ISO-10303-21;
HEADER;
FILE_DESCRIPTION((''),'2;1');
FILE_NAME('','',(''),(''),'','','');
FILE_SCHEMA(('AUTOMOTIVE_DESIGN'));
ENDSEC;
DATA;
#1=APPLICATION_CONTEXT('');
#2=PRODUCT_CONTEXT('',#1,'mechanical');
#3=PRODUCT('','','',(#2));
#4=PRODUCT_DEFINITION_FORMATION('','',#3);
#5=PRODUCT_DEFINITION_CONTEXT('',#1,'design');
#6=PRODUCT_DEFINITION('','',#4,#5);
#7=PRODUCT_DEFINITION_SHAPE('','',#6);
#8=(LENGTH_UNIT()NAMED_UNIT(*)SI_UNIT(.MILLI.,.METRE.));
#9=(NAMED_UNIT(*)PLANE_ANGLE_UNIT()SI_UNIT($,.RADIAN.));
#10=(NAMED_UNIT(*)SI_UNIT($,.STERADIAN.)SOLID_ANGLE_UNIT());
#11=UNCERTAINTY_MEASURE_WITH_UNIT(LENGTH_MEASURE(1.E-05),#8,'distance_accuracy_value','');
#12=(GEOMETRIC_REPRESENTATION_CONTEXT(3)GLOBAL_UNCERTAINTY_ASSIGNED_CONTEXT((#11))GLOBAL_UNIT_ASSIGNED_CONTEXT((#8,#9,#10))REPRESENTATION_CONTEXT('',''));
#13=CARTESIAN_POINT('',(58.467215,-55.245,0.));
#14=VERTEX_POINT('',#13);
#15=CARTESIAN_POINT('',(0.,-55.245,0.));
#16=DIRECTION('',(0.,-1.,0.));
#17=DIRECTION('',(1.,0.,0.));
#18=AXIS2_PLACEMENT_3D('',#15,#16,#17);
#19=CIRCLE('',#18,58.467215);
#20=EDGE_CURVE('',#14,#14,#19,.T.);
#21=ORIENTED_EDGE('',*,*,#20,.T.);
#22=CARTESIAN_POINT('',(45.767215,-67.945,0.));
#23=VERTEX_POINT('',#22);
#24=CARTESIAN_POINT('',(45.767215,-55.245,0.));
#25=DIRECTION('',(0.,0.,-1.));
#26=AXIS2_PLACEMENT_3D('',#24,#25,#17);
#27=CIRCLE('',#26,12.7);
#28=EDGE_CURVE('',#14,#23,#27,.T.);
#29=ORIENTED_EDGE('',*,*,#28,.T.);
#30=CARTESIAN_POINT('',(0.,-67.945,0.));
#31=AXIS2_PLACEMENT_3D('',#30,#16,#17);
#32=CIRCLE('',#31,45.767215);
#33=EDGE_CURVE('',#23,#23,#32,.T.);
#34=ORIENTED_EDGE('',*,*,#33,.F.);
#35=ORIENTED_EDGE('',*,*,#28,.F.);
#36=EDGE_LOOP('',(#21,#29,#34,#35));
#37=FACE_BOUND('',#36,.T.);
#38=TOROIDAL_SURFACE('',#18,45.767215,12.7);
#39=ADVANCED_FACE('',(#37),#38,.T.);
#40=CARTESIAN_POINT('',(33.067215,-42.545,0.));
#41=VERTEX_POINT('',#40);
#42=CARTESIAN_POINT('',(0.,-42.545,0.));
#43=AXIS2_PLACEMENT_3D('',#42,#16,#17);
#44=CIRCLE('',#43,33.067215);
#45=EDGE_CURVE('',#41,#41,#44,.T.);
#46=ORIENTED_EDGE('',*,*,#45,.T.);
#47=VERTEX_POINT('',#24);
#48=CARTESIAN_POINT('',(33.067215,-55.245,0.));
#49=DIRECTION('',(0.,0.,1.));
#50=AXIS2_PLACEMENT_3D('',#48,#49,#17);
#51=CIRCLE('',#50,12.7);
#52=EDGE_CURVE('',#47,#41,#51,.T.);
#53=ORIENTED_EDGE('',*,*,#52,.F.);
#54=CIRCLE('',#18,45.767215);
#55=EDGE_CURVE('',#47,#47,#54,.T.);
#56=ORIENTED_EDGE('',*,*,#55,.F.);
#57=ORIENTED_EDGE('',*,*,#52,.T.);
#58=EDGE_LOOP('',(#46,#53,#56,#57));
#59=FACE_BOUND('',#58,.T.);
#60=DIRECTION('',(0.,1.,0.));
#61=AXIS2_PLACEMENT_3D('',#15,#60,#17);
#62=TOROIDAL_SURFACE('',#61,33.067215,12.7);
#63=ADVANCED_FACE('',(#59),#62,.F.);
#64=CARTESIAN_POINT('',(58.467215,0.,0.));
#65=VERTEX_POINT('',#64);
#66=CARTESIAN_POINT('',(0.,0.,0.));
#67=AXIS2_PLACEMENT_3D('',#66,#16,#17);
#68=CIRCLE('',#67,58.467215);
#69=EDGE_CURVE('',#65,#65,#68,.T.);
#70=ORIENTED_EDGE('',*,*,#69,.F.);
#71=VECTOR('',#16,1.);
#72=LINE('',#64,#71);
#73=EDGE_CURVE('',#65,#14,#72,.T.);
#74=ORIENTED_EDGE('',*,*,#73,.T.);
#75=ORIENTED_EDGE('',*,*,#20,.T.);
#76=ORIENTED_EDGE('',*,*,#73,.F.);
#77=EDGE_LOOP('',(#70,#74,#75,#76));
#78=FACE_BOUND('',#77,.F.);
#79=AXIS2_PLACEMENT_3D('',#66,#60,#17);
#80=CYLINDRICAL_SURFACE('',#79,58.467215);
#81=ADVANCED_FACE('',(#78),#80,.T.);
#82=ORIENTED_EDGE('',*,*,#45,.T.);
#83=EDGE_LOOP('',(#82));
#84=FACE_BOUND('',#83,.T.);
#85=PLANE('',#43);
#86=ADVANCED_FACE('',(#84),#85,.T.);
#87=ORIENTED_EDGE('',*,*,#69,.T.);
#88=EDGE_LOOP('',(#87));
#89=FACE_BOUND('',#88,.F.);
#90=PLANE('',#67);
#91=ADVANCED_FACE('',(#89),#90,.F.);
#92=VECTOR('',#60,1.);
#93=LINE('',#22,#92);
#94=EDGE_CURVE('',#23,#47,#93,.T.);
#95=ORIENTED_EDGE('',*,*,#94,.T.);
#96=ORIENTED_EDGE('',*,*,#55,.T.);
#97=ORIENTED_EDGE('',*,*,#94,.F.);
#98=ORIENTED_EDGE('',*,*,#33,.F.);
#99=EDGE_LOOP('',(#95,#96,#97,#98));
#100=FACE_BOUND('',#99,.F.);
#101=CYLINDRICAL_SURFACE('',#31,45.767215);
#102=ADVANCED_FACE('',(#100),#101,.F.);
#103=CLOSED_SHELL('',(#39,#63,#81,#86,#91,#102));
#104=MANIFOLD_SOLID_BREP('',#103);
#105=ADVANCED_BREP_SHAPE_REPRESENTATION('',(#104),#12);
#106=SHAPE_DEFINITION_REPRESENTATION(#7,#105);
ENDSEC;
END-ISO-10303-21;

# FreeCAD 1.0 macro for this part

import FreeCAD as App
import Part
import Sketcher

V = App.Vector
Q = App.Units.Quantity


def edges_at(feature, points):
    """Names of the edges that pass closest to the given points."""
    edges = feature.Shape.Edges
    near = lambda p: min(range(len(edges)), key=lambda i: edges[i].distToShape(Part.Vertex(*p))[0])
    return sorted({f"Edge{near(p) + 1}" for p in points})

doc = App.newDocument("Part")
params = doc.addObject("Spreadsheet::Sheet", "Params")
for row, (alias, value) in enumerate([
    ("pad1_length", "2.675 in"),
    ("fillet_radius", "0.5 in"),
    ("pocket1_length", "1 in"),
    ("fillet2_radius", "0.5 in"),
], start=1):
    params.set(f"A{row}", alias)
    params.set(f"B{row}", "=" + value)
    params.setAlias(f"B{row}", alias)

body = doc.addObject("PartDesign::Body", "Body")

sketch1 = body.newObject("Sketcher::SketchObject", "Sketch")
sketch1.AttachmentSupport = (doc.getObject("XZ_Plane"), [""])
sketch1.MapMode = "FlatFace"
sketch1.addGeometry(Part.Circle(V(0, 0, 0), V(0, 0, 1), 58), False)
sketch1.addConstraint([
    Sketcher.Constraint("Coincident", 0, 3, -1, 1),
    Sketcher.Constraint("Diameter", 0, Q("116.93443 mm")),
])
pad1 = body.newObject("PartDesign::Pad", "Pad")
pad1.Profile = sketch1
pad1.setExpression("Length", "Params.pad1_length")
doc.recompute()

fillet = body.newObject("PartDesign::Fillet", "Fillet")
fillet.Base = (pad1, edges_at(pad1, [(-58.467, -67.945, 0)]))
fillet.setExpression("Radius", "Params.fillet_radius")

sketch2 = body.newObject("Sketcher::SketchObject", "Sketch001")
sketch2.AttachmentSupport = (doc.getObject("XZ_Plane"), [""])
sketch2.MapMode = "FlatFace"
sketch2.AttachmentOffset = App.Placement(V(0, 0, 2.675 * 25.4), App.Rotation())
sketch2.addGeometry(Part.Circle(V(0, 0, 0), V(0, 0, 1), 46), False)
sketch2.addConstraint([
    Sketcher.Constraint("Coincident", 0, 3, -1, 1),
    Sketcher.Constraint("Diameter", 0, Q("91.53443 mm")),
])
pocket1 = body.newObject("PartDesign::Pocket", "Pocket")
pocket1.Profile = sketch2
pocket1.setExpression("Length", "Params.pocket1_length")
doc.recompute()

fillet2 = body.newObject("PartDesign::Fillet", "Fillet001")
fillet2.Base = (pocket1, edges_at(pocket1, [(-45.767, -42.545, 0)]))
fillet2.setExpression("Radius", "Params.fillet2_radius")

doc.recompute()
